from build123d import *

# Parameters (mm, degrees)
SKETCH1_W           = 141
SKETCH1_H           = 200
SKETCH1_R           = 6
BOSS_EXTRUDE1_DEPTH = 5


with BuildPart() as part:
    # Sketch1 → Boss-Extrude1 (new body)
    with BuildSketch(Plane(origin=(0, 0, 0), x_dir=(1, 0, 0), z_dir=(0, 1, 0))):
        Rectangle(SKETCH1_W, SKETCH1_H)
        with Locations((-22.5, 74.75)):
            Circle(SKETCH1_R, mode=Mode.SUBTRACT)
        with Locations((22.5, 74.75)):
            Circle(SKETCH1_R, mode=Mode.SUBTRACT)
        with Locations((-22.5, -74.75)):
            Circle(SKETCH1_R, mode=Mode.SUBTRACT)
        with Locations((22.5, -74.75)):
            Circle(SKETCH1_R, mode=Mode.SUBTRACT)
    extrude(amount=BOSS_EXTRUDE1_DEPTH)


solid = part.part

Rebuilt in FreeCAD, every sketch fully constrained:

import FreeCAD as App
import Part
import Sketcher

V = App.Vector
Q = App.Units.Quantity


def add_polygon(sketch, points):
    """Adds a closed chain of lines whose ends are joined by coincident constraints."""
    first, n = sketch.GeometryCount, len(points)
    for a, b in zip(points, points[1:] + points[:1]):
        sketch.addGeometry(Part.LineSegment(App.Vector(*a, 0), App.Vector(*b, 0)), False)
    for i in range(n):
        sketch.addConstraint(Sketcher.Constraint("Coincident", first + i, 2, first + (i + 1) % n, 1))

doc = App.newDocument("Part")
body = doc.addObject("PartDesign::Body", "Body")

# Sketch on XZ plane
sketch1 = doc.addObject("Sketcher::SketchObject", "Sketch")
body.addObject(sketch1)
sketch1.AttachmentSupport = (doc.XZ_Plane, [""])
sketch1.MapMode = "FlatFace"
add_polygon(sketch1, [(-70, -100), (-70, 100), (70, 100), (70, -100)])  # lines 0-3
sketch1.addGeometry(Part.Circle(V(-22, 75, 0), V(0, 0, 1), 6), False)  # 4
sketch1.addGeometry(Part.Circle(V(22, 75, 0), V(0, 0, 1), 6), False)  # 5
sketch1.addGeometry(Part.Circle(V(-22, -75, 0), V(0, 0, 1), 6), False)  # 6
sketch1.addGeometry(Part.Circle(V(22, -75, 0), V(0, 0, 1), 6), False)  # 7
sketch1.addConstraint([
    Sketcher.Constraint("Vertical", 0),
    Sketcher.Constraint("Horizontal", 1),
    Sketcher.Constraint("Vertical", 2),
    Sketcher.Constraint("Horizontal", 3),
    Sketcher.Constraint("Equal", 4, 5),
    Sketcher.Constraint("Equal", 5, 6),
    Sketcher.Constraint("Equal", 6, 7),
    Sketcher.Constraint("Symmetric", 5, 3, 6, 3, -1, 1),
    Sketcher.Constraint("Symmetric", 4, 3, 7, 3, -1, 1),
    Sketcher.Constraint("Symmetric", 0, 2, 2, 2, -1, 1),
    Sketcher.Constraint("Symmetric", 4, 3, 5, 3, -2),
    Sketcher.Constraint("Diameter", 4, Q("12 mm")),
    Sketcher.Constraint("DistanceX", 1, 1, 1, 2, Q("141 mm")),
    Sketcher.Constraint("DistanceY", 0, 1, 0, 2, Q("200 mm")),
    Sketcher.Constraint("DistanceX", 4, 3, 5, 3, Q("45 mm")),
    Sketcher.Constraint("DistanceY", 6, 3, 4, 3, Q("149.5 mm")),
])
pad1 = doc.addObject("PartDesign::Pad", "Pad")
body.addObject(pad1)
pad1.Profile = sketch1
pad1.Length = 5
pad1.Reversed = True

doc.recompute()
